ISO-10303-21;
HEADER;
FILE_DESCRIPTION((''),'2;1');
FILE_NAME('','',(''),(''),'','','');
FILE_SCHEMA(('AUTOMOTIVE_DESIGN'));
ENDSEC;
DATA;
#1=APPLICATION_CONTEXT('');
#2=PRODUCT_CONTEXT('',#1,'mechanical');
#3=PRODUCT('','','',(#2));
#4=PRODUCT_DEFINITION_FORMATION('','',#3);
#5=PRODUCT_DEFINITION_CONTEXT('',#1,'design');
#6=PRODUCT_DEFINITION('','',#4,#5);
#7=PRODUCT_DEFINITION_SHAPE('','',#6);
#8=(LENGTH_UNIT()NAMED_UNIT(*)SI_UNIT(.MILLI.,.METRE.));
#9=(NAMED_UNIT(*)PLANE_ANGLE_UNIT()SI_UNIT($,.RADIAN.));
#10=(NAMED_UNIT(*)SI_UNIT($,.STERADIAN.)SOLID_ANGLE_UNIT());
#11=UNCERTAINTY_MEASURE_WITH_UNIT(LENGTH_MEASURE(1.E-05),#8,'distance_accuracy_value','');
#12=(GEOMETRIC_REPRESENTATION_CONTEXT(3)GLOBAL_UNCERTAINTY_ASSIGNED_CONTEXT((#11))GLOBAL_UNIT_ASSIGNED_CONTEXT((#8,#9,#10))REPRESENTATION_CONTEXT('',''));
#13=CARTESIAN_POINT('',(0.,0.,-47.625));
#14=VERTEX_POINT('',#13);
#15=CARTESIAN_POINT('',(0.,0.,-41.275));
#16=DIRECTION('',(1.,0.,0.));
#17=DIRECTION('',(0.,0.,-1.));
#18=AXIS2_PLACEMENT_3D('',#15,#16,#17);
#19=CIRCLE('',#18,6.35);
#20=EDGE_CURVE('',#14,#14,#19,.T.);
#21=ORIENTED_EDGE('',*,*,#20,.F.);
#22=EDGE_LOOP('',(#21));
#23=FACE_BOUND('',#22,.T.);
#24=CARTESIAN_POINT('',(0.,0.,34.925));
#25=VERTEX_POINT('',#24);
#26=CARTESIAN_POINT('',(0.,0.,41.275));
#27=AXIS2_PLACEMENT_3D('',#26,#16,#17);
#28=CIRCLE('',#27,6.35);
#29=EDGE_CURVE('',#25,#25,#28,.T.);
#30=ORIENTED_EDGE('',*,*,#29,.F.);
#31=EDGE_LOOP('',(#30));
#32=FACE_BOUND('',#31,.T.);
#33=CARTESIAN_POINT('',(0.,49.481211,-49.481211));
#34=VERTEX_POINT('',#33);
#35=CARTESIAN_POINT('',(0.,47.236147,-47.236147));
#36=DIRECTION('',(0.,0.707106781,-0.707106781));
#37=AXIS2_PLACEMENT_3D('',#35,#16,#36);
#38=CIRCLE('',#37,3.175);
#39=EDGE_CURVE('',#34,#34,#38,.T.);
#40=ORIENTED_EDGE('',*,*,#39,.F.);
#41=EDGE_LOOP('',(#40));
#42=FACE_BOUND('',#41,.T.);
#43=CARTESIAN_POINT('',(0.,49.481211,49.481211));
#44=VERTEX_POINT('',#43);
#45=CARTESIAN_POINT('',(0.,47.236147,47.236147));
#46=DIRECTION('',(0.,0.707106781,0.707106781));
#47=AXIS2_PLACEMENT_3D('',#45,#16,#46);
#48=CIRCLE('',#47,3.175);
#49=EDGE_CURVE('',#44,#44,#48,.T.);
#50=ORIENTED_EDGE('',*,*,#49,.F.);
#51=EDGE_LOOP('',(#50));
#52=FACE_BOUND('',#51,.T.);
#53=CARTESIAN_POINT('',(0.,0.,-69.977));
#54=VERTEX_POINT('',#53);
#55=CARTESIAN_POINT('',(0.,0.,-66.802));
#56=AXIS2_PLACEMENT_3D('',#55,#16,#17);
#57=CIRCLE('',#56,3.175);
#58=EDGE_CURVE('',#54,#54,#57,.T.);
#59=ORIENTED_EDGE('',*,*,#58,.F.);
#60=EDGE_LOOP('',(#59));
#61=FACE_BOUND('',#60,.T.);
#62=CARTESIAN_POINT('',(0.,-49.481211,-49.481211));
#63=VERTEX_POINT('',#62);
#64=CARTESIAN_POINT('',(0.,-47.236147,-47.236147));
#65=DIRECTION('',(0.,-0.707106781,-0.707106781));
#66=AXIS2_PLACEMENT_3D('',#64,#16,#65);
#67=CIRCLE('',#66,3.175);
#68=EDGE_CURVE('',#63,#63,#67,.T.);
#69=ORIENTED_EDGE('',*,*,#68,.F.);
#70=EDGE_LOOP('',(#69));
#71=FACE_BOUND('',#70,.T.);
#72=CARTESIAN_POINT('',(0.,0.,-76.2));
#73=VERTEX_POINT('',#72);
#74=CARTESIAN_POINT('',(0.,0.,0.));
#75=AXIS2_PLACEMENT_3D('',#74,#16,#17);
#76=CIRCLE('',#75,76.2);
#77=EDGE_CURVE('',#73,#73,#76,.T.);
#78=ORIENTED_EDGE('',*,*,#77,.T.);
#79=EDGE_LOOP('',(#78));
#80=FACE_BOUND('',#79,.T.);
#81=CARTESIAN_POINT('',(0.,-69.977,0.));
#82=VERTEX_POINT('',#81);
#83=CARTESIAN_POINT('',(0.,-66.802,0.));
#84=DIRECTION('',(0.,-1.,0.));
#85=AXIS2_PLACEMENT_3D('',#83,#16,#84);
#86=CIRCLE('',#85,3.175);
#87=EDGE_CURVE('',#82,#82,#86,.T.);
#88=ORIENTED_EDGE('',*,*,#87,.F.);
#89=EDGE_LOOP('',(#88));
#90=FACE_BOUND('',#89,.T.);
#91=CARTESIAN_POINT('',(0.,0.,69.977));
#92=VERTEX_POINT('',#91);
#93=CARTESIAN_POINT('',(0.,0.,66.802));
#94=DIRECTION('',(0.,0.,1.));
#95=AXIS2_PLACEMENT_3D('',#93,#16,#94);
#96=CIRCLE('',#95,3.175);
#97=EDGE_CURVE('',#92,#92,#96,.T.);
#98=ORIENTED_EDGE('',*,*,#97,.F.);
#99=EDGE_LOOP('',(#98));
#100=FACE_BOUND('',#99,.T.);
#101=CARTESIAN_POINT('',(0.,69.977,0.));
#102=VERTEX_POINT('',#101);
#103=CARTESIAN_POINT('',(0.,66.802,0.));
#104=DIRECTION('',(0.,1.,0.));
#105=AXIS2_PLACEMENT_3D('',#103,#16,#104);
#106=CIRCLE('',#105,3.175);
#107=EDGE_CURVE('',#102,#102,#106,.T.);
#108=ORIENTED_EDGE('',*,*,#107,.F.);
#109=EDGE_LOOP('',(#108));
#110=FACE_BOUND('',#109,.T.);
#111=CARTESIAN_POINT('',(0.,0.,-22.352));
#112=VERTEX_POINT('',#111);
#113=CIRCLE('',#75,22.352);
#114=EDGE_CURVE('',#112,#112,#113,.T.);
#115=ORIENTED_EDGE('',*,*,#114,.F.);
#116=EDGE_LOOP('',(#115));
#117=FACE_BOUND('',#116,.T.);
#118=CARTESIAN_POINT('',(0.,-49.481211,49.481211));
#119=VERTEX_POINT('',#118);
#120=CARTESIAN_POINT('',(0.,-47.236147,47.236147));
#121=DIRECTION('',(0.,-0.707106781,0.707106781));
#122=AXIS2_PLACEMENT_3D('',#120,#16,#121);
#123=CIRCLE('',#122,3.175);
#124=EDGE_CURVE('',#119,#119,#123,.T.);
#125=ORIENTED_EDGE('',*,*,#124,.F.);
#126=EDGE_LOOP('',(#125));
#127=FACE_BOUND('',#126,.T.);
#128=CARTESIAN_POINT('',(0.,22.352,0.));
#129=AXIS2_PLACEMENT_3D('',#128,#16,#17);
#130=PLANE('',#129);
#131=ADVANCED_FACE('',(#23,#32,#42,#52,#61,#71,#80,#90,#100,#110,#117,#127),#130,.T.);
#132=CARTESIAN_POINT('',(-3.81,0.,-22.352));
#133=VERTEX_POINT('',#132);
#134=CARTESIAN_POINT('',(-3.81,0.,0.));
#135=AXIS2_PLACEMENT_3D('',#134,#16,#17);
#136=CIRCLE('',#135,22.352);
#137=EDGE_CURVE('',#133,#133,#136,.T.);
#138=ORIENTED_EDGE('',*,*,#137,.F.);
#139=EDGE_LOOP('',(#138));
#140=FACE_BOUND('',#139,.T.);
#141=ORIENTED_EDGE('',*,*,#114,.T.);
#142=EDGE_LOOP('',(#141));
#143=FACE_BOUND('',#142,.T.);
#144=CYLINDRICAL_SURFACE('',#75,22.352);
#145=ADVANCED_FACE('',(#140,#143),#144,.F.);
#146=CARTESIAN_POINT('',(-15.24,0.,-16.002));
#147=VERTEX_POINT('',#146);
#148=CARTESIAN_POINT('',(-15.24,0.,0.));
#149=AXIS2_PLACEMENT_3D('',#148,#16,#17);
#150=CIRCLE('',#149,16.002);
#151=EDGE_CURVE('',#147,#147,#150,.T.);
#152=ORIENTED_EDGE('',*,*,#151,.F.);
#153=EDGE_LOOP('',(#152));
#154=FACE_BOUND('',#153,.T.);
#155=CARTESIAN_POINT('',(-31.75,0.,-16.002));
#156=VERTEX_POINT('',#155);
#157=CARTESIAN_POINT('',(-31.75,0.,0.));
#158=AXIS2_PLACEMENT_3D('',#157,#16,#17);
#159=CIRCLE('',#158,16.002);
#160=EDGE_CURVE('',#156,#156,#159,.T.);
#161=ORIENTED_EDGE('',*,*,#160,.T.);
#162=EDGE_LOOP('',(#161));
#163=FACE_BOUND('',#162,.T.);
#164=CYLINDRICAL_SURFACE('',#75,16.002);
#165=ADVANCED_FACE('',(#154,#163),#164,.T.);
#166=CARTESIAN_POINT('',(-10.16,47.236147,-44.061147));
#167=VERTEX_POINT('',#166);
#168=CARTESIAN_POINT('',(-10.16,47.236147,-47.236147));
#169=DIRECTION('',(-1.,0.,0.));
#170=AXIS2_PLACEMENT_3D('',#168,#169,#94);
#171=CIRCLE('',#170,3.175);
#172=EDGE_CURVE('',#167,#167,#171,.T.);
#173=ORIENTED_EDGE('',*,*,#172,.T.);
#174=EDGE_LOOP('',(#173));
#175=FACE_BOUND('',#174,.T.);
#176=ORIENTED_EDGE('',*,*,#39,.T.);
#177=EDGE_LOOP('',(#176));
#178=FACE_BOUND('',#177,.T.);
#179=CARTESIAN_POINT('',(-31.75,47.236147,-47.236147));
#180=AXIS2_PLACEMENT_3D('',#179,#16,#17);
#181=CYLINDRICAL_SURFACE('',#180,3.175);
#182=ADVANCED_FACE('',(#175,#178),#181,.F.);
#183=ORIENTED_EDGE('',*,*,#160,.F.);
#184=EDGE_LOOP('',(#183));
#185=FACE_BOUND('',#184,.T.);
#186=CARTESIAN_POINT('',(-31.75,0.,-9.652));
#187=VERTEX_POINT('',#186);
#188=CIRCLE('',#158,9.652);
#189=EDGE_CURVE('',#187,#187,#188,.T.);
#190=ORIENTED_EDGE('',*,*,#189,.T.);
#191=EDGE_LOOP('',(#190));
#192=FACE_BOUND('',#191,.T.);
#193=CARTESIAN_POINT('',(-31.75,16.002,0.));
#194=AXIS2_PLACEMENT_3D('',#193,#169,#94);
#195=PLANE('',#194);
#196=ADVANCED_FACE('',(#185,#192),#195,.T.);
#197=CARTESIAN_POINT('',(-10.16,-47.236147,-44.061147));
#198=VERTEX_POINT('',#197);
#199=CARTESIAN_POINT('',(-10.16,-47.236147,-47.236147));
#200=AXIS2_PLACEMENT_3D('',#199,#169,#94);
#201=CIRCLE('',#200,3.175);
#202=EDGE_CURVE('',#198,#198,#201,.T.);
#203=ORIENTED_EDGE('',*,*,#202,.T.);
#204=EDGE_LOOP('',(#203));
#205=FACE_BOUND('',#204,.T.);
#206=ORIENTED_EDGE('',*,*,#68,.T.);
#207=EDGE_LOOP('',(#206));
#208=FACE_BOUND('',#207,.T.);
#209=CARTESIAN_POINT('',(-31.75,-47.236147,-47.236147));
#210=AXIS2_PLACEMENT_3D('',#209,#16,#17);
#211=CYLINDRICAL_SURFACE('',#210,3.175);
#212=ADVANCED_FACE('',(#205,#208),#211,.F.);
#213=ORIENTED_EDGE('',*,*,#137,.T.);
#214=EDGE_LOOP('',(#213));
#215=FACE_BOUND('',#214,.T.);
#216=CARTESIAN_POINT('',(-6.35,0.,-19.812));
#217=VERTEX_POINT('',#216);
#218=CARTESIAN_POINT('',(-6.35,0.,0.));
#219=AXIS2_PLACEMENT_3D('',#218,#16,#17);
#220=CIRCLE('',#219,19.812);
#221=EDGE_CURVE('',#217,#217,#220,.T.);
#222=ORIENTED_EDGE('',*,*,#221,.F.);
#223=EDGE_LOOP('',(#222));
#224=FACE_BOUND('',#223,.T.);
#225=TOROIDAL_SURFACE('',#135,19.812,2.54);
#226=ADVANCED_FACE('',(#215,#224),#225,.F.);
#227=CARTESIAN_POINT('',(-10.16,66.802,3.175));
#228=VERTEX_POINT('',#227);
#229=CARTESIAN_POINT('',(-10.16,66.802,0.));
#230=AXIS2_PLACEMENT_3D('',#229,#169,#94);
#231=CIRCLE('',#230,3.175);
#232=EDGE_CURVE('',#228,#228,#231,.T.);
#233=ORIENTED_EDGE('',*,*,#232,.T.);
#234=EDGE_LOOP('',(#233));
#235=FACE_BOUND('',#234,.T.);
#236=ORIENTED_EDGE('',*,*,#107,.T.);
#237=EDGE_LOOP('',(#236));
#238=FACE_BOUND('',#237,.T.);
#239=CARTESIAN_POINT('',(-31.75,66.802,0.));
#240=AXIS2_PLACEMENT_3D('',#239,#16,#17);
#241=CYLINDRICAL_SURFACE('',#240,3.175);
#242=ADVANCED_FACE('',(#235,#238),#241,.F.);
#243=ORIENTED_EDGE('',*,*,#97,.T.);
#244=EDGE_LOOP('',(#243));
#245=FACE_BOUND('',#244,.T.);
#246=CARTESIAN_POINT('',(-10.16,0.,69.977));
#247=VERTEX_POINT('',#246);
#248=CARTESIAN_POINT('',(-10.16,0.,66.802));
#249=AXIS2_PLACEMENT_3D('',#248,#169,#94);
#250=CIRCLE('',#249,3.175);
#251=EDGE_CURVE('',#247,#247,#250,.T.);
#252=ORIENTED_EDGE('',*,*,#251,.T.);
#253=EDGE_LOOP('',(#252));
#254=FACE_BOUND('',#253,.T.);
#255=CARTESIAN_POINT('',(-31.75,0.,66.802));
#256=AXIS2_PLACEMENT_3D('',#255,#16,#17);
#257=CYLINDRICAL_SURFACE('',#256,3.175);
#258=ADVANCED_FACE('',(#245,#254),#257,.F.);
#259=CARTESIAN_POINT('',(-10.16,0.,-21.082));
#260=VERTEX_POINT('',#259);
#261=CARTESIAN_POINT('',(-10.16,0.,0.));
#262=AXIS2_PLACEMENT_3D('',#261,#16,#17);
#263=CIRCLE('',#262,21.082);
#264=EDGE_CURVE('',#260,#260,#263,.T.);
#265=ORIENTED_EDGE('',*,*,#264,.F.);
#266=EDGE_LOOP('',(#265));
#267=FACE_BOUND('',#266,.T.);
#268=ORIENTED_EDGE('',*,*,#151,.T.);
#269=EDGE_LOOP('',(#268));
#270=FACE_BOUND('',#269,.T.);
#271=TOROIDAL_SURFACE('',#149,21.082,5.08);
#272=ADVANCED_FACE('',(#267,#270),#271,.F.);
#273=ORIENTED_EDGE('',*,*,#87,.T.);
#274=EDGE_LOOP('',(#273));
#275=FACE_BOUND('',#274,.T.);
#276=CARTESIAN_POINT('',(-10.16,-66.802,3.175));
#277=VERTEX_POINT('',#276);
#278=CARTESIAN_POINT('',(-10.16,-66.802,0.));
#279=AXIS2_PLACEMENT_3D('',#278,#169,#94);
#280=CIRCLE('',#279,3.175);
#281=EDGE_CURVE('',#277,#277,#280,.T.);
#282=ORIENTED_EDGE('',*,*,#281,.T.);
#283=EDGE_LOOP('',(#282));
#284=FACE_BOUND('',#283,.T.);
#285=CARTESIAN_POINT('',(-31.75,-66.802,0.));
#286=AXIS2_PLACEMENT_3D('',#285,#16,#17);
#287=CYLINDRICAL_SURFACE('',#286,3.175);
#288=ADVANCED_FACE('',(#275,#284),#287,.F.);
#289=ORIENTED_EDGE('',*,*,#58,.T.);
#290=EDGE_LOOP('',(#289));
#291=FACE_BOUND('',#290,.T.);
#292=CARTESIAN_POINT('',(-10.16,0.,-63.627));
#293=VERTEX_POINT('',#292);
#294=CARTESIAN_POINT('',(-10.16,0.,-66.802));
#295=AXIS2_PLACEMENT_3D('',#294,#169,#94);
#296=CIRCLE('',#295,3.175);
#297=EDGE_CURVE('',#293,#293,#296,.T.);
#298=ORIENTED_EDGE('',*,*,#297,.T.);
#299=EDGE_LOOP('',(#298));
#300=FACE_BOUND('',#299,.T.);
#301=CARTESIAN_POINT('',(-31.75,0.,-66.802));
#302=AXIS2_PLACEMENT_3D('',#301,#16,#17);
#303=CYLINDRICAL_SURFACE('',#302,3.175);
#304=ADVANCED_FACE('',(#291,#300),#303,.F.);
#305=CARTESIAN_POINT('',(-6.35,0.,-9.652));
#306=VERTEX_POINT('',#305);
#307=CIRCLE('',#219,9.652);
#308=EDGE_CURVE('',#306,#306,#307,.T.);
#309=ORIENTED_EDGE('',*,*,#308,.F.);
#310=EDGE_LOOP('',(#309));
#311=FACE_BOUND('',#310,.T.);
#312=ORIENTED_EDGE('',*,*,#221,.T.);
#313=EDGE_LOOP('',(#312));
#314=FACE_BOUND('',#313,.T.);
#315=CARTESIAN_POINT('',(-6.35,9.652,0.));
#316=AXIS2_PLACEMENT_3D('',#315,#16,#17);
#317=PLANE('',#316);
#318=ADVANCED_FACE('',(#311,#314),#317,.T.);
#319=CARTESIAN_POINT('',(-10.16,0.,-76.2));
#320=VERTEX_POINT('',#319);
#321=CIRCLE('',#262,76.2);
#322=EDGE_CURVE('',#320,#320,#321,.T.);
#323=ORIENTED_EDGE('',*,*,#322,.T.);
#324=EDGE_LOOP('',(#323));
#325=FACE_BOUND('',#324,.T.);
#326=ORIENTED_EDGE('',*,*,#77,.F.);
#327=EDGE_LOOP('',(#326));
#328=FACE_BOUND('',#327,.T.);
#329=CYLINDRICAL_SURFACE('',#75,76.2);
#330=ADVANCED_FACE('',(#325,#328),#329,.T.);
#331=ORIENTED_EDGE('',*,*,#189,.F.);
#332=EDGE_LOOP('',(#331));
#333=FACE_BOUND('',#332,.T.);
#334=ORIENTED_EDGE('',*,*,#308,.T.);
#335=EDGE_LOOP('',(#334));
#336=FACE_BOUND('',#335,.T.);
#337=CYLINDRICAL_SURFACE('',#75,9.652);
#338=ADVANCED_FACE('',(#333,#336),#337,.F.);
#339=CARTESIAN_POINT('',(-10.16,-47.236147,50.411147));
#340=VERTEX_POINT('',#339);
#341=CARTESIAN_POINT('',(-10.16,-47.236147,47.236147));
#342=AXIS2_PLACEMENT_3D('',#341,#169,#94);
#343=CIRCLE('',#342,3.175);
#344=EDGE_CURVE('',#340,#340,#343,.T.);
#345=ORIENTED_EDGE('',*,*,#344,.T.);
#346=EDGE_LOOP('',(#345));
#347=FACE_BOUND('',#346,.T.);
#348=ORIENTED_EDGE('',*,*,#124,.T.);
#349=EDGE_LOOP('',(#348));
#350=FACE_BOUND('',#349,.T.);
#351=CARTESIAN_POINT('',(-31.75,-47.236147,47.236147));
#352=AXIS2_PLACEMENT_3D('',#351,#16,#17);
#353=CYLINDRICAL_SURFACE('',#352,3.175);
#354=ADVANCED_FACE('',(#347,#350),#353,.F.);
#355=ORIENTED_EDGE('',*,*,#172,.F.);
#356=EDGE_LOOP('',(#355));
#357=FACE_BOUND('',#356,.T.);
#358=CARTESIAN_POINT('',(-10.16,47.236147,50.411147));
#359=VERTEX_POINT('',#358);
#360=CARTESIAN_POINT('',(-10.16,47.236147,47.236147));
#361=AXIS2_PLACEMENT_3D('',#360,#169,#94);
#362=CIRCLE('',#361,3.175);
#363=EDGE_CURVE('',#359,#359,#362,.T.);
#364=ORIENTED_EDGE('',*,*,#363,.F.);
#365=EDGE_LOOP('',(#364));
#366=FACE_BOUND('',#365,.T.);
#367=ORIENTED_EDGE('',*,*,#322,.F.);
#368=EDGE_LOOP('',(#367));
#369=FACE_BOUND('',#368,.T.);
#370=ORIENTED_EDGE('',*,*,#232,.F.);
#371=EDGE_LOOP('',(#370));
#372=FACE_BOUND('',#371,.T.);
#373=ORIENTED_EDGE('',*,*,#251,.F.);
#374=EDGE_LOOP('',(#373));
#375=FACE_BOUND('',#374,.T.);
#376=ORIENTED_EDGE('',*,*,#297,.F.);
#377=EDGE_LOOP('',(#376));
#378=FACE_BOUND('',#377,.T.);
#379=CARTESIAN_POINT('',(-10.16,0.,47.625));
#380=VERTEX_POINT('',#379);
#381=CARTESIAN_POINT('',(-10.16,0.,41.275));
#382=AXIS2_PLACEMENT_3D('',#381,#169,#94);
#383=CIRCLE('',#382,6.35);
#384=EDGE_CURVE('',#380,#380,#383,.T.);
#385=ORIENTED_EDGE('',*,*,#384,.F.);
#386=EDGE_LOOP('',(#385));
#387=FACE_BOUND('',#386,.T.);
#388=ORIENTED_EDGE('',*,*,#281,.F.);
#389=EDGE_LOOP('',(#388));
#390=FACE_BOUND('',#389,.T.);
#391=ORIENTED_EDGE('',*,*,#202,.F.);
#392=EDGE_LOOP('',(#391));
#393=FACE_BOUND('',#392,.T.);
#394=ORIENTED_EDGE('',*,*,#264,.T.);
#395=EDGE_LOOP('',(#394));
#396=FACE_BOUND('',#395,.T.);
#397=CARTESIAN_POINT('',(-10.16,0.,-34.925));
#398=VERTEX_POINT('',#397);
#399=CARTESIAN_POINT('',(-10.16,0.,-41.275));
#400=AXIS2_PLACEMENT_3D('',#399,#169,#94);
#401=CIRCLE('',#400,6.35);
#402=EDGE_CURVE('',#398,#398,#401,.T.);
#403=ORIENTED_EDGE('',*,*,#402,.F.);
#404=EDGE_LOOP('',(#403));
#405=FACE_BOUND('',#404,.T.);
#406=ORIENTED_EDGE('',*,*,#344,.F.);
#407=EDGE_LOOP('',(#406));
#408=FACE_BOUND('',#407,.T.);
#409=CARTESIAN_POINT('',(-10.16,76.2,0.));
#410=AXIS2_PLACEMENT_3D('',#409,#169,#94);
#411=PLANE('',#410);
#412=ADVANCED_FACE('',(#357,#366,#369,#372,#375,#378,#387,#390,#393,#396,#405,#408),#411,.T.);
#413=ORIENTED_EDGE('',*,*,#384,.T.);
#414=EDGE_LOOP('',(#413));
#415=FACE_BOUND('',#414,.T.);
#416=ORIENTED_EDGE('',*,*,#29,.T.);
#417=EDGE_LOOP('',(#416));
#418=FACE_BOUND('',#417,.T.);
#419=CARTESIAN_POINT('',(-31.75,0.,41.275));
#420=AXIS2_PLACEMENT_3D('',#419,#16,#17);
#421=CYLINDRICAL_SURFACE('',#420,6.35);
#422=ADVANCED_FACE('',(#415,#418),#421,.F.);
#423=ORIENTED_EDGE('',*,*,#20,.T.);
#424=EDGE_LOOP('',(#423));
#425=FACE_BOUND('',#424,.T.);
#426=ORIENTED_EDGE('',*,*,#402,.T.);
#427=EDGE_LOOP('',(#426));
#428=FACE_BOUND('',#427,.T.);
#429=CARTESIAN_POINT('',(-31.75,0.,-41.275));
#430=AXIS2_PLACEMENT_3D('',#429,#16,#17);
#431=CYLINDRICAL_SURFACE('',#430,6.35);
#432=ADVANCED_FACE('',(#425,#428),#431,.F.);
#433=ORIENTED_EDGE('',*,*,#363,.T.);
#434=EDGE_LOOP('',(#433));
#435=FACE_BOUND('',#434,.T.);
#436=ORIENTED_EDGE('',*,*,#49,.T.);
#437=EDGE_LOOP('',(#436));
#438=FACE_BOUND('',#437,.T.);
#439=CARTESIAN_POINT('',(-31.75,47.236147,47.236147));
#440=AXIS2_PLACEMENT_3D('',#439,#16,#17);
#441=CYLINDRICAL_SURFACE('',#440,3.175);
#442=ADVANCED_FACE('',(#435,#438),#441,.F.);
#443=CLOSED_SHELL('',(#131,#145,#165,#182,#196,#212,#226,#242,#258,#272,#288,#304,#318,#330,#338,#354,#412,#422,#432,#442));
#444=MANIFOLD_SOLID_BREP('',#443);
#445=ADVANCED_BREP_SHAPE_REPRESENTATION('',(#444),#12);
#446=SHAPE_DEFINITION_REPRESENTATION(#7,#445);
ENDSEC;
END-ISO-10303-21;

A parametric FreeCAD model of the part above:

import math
import FreeCAD as App
import Part
import Sketcher
from FreeCAD import Vector
Q = App.Units.Quantity

doc = App.newDocument("Part")
body = doc.addObject("PartDesign::Body", "Body")

# Sketch on XY plane
sketch1 = body.newObject("Sketcher::SketchObject", "Sketch")
sketch1.AttachmentSupport = (doc.getObject("XY_Plane"), [""])
sketch1.MapMode = "FlatFace"
sketch1.addGeometry([
    Part.LineSegment(Vector(0, 76.2, 0), Vector(-10.16, 76.2, 0)),  # 0
    Part.LineSegment(Vector(-10.16, 76.2, 0), Vector(-10.16, 21.082, 0)),  # 1
    Part.ArcOfCircle(Part.Circle(Vector(-15.24, 21.082, 0), Vector(0, 0, 1), 5.08), math.radians(-90), math.radians(0)),  # 2
    Part.LineSegment(Vector(-15.24, 16.002, 0), Vector(-31.75, 16.002, 0)),  # 3
    Part.LineSegment(Vector(-31.75, 16.002, 0), Vector(-31.75, 9.652, 0)),  # 4
    Part.LineSegment(Vector(-31.75, 9.652, 0), Vector(-6.35, 9.652, 0)),  # 5
    Part.LineSegment(Vector(-6.35, 9.652, 0), Vector(-6.35, 19.812, 0)),  # 6
    Part.ArcOfCircle(Part.Circle(Vector(-3.81, 19.812, 0), Vector(0, 0, 1), 2.54), math.radians(90), math.radians(180)),  # 7
    Part.LineSegment(Vector(-3.81, 22.352, 0), Vector(0, 22.352, 0)),  # 8
    Part.LineSegment(Vector(0, 22.352, 0), Vector(0, 76.2, 0)),  # 9
], False)
sketch1.addConstraint([
    Sketcher.Constraint("Coincident", 0, 2, 1, 1),
    Sketcher.Constraint("Tangent", 1, 2, 2, 2),
    Sketcher.Constraint("Tangent", 2, 1, 3, 1),
    Sketcher.Constraint("Coincident", 3, 2, 4, 1),
    Sketcher.Constraint("Coincident", 4, 2, 5, 1),
    Sketcher.Constraint("Coincident", 5, 2, 6, 1),
    Sketcher.Constraint("Tangent", 6, 2, 7, 2),
    Sketcher.Constraint("Tangent", 7, 1, 8, 1),
    Sketcher.Constraint("Coincident", 8, 2, 9, 1),
    Sketcher.Constraint("Coincident", 9, 2, 0, 1),
    Sketcher.Constraint("Horizontal", 0),
    Sketcher.Constraint("Vertical", 1),
    Sketcher.Constraint("Horizontal", 3),
    Sketcher.Constraint("Vertical", 4),
    Sketcher.Constraint("Horizontal", 5),
    Sketcher.Constraint("Vertical", 6),
    Sketcher.Constraint("Horizontal", 8),
    Sketcher.Constraint("Vertical", 9),
    Sketcher.Constraint("PointOnObject", 8, 2, -2),
    Sketcher.Constraint("Equal", 0, 6),
    Sketcher.Constraint("Radius", 2, Q("0.2 in")),
    Sketcher.Constraint("Radius", 7, Q("0.1 in")),
    Sketcher.Constraint("DistanceX", 5, 1, 5, 2, Q("1 in")),
    Sketcher.Constraint("DistanceX", 0, 2, 0, 1, Q("0.4 in")),
    Sketcher.Constraint("DistanceY", -1, 1, 0, 2, Q("3 in")),
    Sketcher.Constraint("DistanceX", 3, 2, 3, 1, Q("0.65 in")),
    Sketcher.Constraint("DistanceY", 1, 2, 1, 1, Q("2.17 in")),
    Sketcher.Constraint("DistanceY", 4, 2, 4, 1, Q("0.25 in")),
])
revolution = body.newObject("PartDesign::Revolution", "Revolution")
revolution.Profile = sketch1
revolution.ReferenceAxis = (sketch1, ["H_Axis"])
revolution.Angle = 360

# Sketch on YZ plane
sketch2 = body.newObject("Sketcher::SketchObject", "Sketch001")
sketch2.AttachmentSupport = (doc.getObject("YZ_Plane"), [""])
sketch2.MapMode = "FlatFace"
sketch2.addGeometry([
    Part.Circle(Vector(0, -41.275, 0), Vector(0, 0, 1), 6.35),
    Part.Circle(Vector(0, 41.275, 0), Vector(0, 0, 1), 6.35),
], False)
sketch2.addConstraint([
    Sketcher.Constraint("Equal", 0, 1),
    Sketcher.Constraint("Symmetric", 0, 3, 1, 3, -1, 1),
    Sketcher.Constraint("PointOnObject", 0, 3, -2),
    Sketcher.Constraint("Diameter", 0, Q("0.5 in")),
    Sketcher.Constraint("DistanceY", 0, 3, 1, 3, Q("3.25 in")),
])
pocket1 = body.newObject("PartDesign::Pocket", "Pocket")
pocket1.Profile = sketch2
pocket1.Type = "ThroughAll"
pocket1.Midplane = True

# Sketch on YZ plane
sketch3 = body.newObject("Sketcher::SketchObject", "Sketch002")
sketch3.AttachmentSupport = (doc.getObject("YZ_Plane"), [""])
sketch3.MapMode = "FlatFace"
sketch3.addGeometry(Part.Circle(Vector(0, -66.802, 0), Vector(0, 0, 1), 3.175), False)
sketch3.addConstraint([
    Sketcher.Constraint("PointOnObject", 0, 3, -2),
    Sketcher.Constraint("Diameter", 0, Q("0.25 in")),
    Sketcher.Constraint("DistanceY", 0, 3, -1, 1, Q("2.63 in")),
])
pocket2 = body.newObject("PartDesign::Pocket", "Pocket001")
pocket2.Profile = sketch3
pocket2.Type = "ThroughAll"
doc.recompute()

polarpattern = body.newObject("PartDesign::PolarPattern", "PolarPattern")
polarpattern.Originals = [pocket2]
polarpattern.Axis = (doc.getObject("X_Axis"), [""])
polarpattern.Angle = 360
polarpattern.Occurrences = 8
body.Tip = polarpattern

doc.recompute()
